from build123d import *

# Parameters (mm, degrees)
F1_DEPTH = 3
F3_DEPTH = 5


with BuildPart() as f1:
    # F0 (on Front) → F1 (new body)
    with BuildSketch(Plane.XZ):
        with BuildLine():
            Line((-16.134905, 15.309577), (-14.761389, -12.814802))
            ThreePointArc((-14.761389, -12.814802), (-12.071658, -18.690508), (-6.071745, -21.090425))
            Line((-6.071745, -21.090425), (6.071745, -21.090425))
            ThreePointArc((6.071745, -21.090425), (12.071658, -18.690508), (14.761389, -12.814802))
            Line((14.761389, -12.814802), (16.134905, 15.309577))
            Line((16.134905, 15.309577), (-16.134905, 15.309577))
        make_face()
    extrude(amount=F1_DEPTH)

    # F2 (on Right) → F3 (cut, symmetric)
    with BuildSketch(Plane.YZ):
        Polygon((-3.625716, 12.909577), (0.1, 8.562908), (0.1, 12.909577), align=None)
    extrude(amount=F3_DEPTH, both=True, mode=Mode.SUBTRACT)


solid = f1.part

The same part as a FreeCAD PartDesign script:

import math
import FreeCAD as App
import Part
import Sketcher
from FreeCAD import Vector
Q = App.Units.Quantity


def add_polygon(sketch, points):
    """Adds a closed chain of lines whose ends are joined by coincident constraints."""
    first, n = sketch.GeometryCount, len(points)
    for a, b in zip(points, points[1:] + points[:1]):
        sketch.addGeometry(Part.LineSegment(App.Vector(*a, 0), App.Vector(*b, 0)), False)
    for i in range(n):
        sketch.addConstraint(Sketcher.Constraint("Coincident", first + i, 2, first + (i + 1) % n, 1))

doc = App.newDocument("Part")
params = doc.addObject("Spreadsheet::Sheet", "Params")
for row, (alias, value) in enumerate([
    ("sketch1_radius", "8.700001 mm"),
    ("pad1_length", "3 mm"),
    ("pocket1_length", "10 mm"),
], start=1):
    params.set(f"A{row}", alias)
    params.set(f"B{row}", "=" + value)
    params.setAlias(f"B{row}", alias)

body = doc.addObject("PartDesign::Body", "Body")

sketch1 = doc.addObject("Sketcher::SketchObject", "Sketch")
body.addObject(sketch1)
sketch1.AttachmentSupport = (doc.XZ_Plane, [""])
sketch1.MapMode = "FlatFace"
sketch1.addGeometry([
    Part.LineSegment(Vector(-16, 15, 0), Vector(-15, -13, 0)),
    Part.ArcOfCircle(Part.Circle(Vector(-6, -12, 0), Vector(0, 0, 1), 9), math.radians(-177), math.radians(-90)),
    Part.LineSegment(Vector(-6, -21, 0), Vector(6, -21, 0)),
    Part.ArcOfCircle(Part.Circle(Vector(6, -12, 0), Vector(0, 0, 1), 9), math.radians(-90), math.radians(-3)),
    Part.LineSegment(Vector(15, -13, 0), Vector(16, 15, 0)),
    Part.LineSegment(Vector(16, 15, 0), Vector(-16, 15, 0)),
], False)
sketch1.addConstraint([
    Sketcher.Constraint("Tangent", 0, 2, 1, 1),
    Sketcher.Constraint("Tangent", 1, 2, 2, 1),
    Sketcher.Constraint("Tangent", 2, 2, 3, 1),
    Sketcher.Constraint("Tangent", 3, 2, 4, 1),
    Sketcher.Constraint("Coincident", 4, 2, 5, 1),
    Sketcher.Constraint("Coincident", 5, 2, 0, 1),
    Sketcher.Constraint("Horizontal", 2),
    Sketcher.Constraint("Horizontal", 5),
    Sketcher.Constraint("Equal", 1, 3),
    Sketcher.Constraint("Symmetric", 0, 2, 3, 2, -2),
    Sketcher.Constraint("Radius", 1, Q("8.700001 mm")),
    Sketcher.Constraint("DistanceY", 3, 3, 4, 2, Q("27.700001 mm")),
    Sketcher.Constraint("Distance", 0, Q("28.157898 mm")),
    Sketcher.Constraint("DistanceX", 2, 1, 2, 2, Q("12.14349 mm")),
    Sketcher.Constraint("DistanceY", 1, 3, -1, 1, Q("12.390424 mm")),
])
sketch1.setExpression("Constraints[10]", "Params.sketch1_radius")
pad1 = doc.addObject("PartDesign::Pad", "Pad")
body.addObject(pad1)
pad1.Profile = sketch1
pad1.setExpression("Length", "Params.pad1_length")

sketch2 = doc.addObject("Sketcher::SketchObject", "Sketch001")
body.addObject(sketch2)
sketch2.AttachmentSupport = (doc.YZ_Plane, [""])
sketch2.MapMode = "FlatFace"
add_polygon(sketch2, [(-3.6, 12.9), (0.1, 8.6), (0.1, 12.9)])
sketch2.addConstraint([
    Sketcher.Constraint("Vertical", 1),
    Sketcher.Constraint("Horizontal", 2),
    Sketcher.Constraint("DistanceX", -1, 1, 0, 2, Q("0.1 mm")),
    Sketcher.Constraint("Distance", 0, Q("5.724901 mm")),
    Sketcher.Constraint("DistanceY", 1, 1, 1, 2, Q("4.346669 mm")),
    Sketcher.Constraint("DistanceY", -1, 1, 0, 2, Q("8.562908 mm")),
])
pocket1 = doc.addObject("PartDesign::Pocket", "Pocket")
body.addObject(pocket1)
pocket1.Profile = sketch2
pocket1.setExpression("Length", "Params.pocket1_length")
pocket1.Midplane = True

doc.recompute()
